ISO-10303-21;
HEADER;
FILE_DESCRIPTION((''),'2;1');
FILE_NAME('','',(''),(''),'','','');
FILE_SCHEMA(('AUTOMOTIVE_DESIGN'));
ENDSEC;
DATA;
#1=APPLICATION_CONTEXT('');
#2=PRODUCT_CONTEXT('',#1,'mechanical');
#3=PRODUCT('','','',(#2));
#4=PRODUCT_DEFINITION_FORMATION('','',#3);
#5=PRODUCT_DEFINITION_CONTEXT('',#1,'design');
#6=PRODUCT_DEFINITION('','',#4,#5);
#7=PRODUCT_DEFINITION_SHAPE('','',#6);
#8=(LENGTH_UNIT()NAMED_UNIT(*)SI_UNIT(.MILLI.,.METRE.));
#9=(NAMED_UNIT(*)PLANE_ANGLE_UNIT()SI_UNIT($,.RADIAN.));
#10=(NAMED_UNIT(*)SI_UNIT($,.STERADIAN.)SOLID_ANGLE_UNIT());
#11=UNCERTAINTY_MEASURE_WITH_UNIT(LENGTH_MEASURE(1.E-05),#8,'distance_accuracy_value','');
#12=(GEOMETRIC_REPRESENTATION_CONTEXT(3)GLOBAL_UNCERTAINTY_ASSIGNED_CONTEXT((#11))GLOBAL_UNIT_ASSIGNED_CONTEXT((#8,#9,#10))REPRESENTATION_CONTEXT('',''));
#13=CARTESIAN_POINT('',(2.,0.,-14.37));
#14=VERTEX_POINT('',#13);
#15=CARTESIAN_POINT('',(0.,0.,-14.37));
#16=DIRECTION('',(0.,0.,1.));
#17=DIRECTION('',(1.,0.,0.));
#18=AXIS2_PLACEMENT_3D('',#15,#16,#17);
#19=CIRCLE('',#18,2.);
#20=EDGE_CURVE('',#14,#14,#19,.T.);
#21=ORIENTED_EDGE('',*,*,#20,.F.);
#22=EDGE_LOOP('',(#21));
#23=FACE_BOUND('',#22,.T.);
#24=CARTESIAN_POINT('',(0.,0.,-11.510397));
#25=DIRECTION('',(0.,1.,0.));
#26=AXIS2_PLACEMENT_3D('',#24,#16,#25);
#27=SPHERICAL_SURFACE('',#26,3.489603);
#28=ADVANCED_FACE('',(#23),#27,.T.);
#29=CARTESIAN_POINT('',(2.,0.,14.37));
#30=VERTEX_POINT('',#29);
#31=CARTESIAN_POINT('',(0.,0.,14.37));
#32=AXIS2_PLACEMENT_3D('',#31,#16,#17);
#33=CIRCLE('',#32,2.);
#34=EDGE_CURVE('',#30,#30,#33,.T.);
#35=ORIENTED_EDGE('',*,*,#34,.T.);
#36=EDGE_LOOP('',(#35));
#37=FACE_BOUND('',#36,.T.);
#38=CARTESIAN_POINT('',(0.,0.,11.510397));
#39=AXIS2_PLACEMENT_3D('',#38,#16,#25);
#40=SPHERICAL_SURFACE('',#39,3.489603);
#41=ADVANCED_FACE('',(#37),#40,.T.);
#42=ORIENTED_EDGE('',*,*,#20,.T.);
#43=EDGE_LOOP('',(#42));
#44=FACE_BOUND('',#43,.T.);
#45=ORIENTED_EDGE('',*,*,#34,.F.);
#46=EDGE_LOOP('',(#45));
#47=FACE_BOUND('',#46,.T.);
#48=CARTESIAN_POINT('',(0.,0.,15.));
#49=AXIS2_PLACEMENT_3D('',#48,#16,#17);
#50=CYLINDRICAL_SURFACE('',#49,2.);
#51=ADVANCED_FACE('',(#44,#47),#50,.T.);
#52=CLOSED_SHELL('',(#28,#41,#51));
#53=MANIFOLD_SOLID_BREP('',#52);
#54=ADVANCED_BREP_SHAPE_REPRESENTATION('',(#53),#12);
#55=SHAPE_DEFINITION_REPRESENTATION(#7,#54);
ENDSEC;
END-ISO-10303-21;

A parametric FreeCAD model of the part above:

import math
import FreeCAD as App
import Part
import Sketcher
Q = App.Units.Quantity

doc = App.newDocument("Part")
body = doc.addObject("PartDesign::Body", "Body")

# Sketch on YZ plane
sketch1 = body.newObject("Sketcher::SketchObject", "Sketch")
sketch1.AttachmentSupport = (doc.getObject("YZ_Plane"), [""])
sketch1.MapMode = "FlatFace"
sketch1.addGeometry([
    Part.LineSegment(App.Vector(2, -14.4, 0), App.Vector(2, 14.4, 0)),
    Part.ArcOfCircle(Part.Circle(App.Vector(0, 11.5, 0), App.Vector(0, 0, 1), 3.5), math.radians(55), math.radians(90)),
    Part.LineSegment(App.Vector(0, 15, 0), App.Vector(0, -15, 0)),
    Part.ArcOfCircle(Part.Circle(App.Vector(0, -11.5, 0), App.Vector(0, 0, 1), 3.5), math.radians(-90), math.radians(-55)),
], False)
sketch1.addConstraint([
    Sketcher.Constraint("Coincident", 0, 2, 1, 1),
    Sketcher.Constraint("Coincident", 1, 2, 2, 1),
    Sketcher.Constraint("Coincident", 2, 2, 3, 1),
    Sketcher.Constraint("Coincident", 3, 2, 0, 1),
    Sketcher.Constraint("Vertical", 0),
    Sketcher.Constraint("Vertical", 2),
    Sketcher.Constraint("Equal", 1, 3),
    Sketcher.Constraint("Symmetric", 1, 3, 3, 3, -1, 1),
    Sketcher.Constraint("PointOnObject", 1, 3, -2),
    Sketcher.Constraint("PointOnObject", 1, 2, -2),
    Sketcher.Constraint("DistanceY", 2, 2, 2, 1, Q("30 mm")),
    Sketcher.Constraint("DistanceX", -1, 1, 0, 2, Q("2 mm")),
    Sketcher.Constraint("DistanceY", 0, 1, 0, 2, Q("28.74 mm")),
])
revolution = body.newObject("PartDesign::Revolution", "Revolution")
revolution.Profile = sketch1
revolution.ReferenceAxis = (sketch1, ["V_Axis"])
revolution.Angle = 360

doc.recompute()
